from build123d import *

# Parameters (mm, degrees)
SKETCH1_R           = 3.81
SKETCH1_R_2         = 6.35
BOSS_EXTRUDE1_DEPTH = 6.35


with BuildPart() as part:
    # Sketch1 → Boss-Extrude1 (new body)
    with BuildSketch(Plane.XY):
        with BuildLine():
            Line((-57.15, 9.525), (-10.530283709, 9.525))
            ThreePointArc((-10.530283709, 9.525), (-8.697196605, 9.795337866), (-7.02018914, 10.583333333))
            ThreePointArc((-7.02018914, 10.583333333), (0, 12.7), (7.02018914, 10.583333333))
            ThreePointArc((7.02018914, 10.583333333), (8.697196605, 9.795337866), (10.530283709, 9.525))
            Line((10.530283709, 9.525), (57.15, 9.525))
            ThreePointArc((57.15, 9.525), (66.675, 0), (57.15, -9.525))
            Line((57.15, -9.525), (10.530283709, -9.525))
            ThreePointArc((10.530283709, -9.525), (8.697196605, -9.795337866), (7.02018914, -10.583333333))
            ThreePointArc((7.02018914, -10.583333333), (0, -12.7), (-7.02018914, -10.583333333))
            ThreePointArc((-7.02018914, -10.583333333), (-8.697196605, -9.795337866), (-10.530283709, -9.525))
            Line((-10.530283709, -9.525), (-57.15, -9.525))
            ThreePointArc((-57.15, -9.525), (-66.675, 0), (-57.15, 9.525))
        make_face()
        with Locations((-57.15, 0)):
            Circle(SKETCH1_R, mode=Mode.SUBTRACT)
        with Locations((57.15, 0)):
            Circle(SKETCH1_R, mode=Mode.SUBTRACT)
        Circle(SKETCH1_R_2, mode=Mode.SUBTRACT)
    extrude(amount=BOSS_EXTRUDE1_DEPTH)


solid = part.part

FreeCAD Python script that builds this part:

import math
import FreeCAD as App
import Part
import Sketcher
Q = App.Units.Quantity

doc = App.newDocument("Part")
body = doc.addObject("PartDesign::Body", "Body")

# Sketch on XY plane
sketch1 = body.newObject("Sketcher::SketchObject", "Sketch")
sketch1.AttachmentSupport = (doc.getObject("XY_Plane"), [""])
sketch1.MapMode = "FlatFace"
sketch1.addGeometry([
    Part.LineSegment(App.Vector(-10.530284, 9.525, 0), App.Vector(-57.15, 9.525, 0)),  # 0
    Part.ArcOfCircle(Part.Circle(App.Vector(-57.15, 0, 0), App.Vector(0, 0, 1), 9.525), math.radians(90), math.radians(270)),  # 1
    Part.LineSegment(App.Vector(-57.15, -9.525, 0), App.Vector(-10.530284, -9.525, 0)),  # 2
    Part.ArcOfCircle(Part.Circle(App.Vector(-10.530284, -15.875, 0), App.Vector(0, 0, 1), 6.35), math.radians(56.44269), math.radians(90)),  # 3
    Part.ArcOfCircle(Part.Circle(App.Vector(0, 0, 0), App.Vector(0, 0, 1), 12.7), math.radians(-123.55731), math.radians(-56.44269)),  # 4
    Part.ArcOfCircle(Part.Circle(App.Vector(10.530284, -15.875, 0), App.Vector(0, 0, 1), 6.35), math.radians(90), math.radians(123.55731)),  # 5
    Part.LineSegment(App.Vector(10.530284, -9.525, 0), App.Vector(57.15, -9.525, 0)),  # 6
    Part.ArcOfCircle(Part.Circle(App.Vector(57.15, 0, 0), App.Vector(0, 0, 1), 9.525), math.radians(-90), math.radians(90)),  # 7
    Part.LineSegment(App.Vector(57.15, 9.525, 0), App.Vector(10.530284, 9.525, 0)),  # 8
    Part.ArcOfCircle(Part.Circle(App.Vector(10.530284, 15.875, 0), App.Vector(0, 0, 1), 6.35), math.radians(-123.55731), math.radians(-90)),  # 9
    Part.ArcOfCircle(Part.Circle(App.Vector(0, 0, 0), App.Vector(0, 0, 1), 12.7), math.radians(56.44269), math.radians(123.55731)),  # 10
    Part.ArcOfCircle(Part.Circle(App.Vector(-10.530284, 15.875, 0), App.Vector(0, 0, 1), 6.35), math.radians(-90), math.radians(-56.44269)),  # 11
    Part.Circle(App.Vector(57.15, 0, 0), App.Vector(0, 0, 1), 3.81),  # 12
    Part.Circle(App.Vector(0, 0, 0), App.Vector(0, 0, 1), 6.35),  # 13
    Part.Circle(App.Vector(-57.15, 0, 0), App.Vector(0, 0, 1), 3.81),  # 14
], False)
sketch1.addConstraint([
    Sketcher.Constraint("Tangent", 0, 2, 1, 1),
    Sketcher.Constraint("Tangent", 1, 2, 2, 1),
    Sketcher.Constraint("Tangent", 2, 2, 3, 2),
    Sketcher.Constraint("Tangent", 3, 1, 4, 1),
    Sketcher.Constraint("Tangent", 4, 2, 5, 2),
    Sketcher.Constraint("Tangent", 5, 1, 6, 1),
    Sketcher.Constraint("Tangent", 6, 2, 7, 1),
    Sketcher.Constraint("Tangent", 7, 2, 8, 1),
    Sketcher.Constraint("Tangent", 8, 2, 9, 2),
    Sketcher.Constraint("Tangent", 9, 1, 10, 1),
    Sketcher.Constraint("Tangent", 10, 2, 11, 2),
    Sketcher.Constraint("Tangent", 11, 1, 0, 1),
    Sketcher.Constraint("Horizontal", 0),
    Sketcher.Constraint("Horizontal", 2),
    Sketcher.Constraint("Horizontal", 6),
    Sketcher.Constraint("Horizontal", 8),
    Sketcher.Constraint("Coincident", 4, 3, -1, 1),
    Sketcher.Constraint("Coincident", 10, 3, -1, 1),
    Sketcher.Constraint("Coincident", 13, 3, -1, 1),
    Sketcher.Constraint("Coincident", 12, 3, 7, 3),
    Sketcher.Constraint("Coincident", 14, 3, 1, 3),
    Sketcher.Constraint("Equal", 3, 5),
    Sketcher.Constraint("Equal", 1, 7),
    Sketcher.Constraint("Equal", 5, 9),
    Sketcher.Constraint("Equal", 4, 10),
    Sketcher.Constraint("Equal", 9, 11),
    Sketcher.Constraint("Equal", 11, 13),
    Sketcher.Constraint("Equal", 12, 14),
    Sketcher.Constraint("Symmetric", 1, 3, 7, 3, -1, 1),
    Sketcher.Constraint("PointOnObject", 1, 3, -1),
    Sketcher.Constraint("Diameter", 12, Q("0.3 in")),
    Sketcher.Constraint("Diameter", 13, Q("0.5 in")),
    Sketcher.Constraint("Radius", 4, Q("0.5 in")),
    Sketcher.Constraint("Radius", 1, Q("0.375 in")),
    Sketcher.Constraint("DistanceX", 1, 3, 7, 3, Q("4.5 in")),
])
pad1 = body.newObject("PartDesign::Pad", "Pad")
pad1.Profile = sketch1
pad1.Length = Q("0.25 in")

doc.recompute()
